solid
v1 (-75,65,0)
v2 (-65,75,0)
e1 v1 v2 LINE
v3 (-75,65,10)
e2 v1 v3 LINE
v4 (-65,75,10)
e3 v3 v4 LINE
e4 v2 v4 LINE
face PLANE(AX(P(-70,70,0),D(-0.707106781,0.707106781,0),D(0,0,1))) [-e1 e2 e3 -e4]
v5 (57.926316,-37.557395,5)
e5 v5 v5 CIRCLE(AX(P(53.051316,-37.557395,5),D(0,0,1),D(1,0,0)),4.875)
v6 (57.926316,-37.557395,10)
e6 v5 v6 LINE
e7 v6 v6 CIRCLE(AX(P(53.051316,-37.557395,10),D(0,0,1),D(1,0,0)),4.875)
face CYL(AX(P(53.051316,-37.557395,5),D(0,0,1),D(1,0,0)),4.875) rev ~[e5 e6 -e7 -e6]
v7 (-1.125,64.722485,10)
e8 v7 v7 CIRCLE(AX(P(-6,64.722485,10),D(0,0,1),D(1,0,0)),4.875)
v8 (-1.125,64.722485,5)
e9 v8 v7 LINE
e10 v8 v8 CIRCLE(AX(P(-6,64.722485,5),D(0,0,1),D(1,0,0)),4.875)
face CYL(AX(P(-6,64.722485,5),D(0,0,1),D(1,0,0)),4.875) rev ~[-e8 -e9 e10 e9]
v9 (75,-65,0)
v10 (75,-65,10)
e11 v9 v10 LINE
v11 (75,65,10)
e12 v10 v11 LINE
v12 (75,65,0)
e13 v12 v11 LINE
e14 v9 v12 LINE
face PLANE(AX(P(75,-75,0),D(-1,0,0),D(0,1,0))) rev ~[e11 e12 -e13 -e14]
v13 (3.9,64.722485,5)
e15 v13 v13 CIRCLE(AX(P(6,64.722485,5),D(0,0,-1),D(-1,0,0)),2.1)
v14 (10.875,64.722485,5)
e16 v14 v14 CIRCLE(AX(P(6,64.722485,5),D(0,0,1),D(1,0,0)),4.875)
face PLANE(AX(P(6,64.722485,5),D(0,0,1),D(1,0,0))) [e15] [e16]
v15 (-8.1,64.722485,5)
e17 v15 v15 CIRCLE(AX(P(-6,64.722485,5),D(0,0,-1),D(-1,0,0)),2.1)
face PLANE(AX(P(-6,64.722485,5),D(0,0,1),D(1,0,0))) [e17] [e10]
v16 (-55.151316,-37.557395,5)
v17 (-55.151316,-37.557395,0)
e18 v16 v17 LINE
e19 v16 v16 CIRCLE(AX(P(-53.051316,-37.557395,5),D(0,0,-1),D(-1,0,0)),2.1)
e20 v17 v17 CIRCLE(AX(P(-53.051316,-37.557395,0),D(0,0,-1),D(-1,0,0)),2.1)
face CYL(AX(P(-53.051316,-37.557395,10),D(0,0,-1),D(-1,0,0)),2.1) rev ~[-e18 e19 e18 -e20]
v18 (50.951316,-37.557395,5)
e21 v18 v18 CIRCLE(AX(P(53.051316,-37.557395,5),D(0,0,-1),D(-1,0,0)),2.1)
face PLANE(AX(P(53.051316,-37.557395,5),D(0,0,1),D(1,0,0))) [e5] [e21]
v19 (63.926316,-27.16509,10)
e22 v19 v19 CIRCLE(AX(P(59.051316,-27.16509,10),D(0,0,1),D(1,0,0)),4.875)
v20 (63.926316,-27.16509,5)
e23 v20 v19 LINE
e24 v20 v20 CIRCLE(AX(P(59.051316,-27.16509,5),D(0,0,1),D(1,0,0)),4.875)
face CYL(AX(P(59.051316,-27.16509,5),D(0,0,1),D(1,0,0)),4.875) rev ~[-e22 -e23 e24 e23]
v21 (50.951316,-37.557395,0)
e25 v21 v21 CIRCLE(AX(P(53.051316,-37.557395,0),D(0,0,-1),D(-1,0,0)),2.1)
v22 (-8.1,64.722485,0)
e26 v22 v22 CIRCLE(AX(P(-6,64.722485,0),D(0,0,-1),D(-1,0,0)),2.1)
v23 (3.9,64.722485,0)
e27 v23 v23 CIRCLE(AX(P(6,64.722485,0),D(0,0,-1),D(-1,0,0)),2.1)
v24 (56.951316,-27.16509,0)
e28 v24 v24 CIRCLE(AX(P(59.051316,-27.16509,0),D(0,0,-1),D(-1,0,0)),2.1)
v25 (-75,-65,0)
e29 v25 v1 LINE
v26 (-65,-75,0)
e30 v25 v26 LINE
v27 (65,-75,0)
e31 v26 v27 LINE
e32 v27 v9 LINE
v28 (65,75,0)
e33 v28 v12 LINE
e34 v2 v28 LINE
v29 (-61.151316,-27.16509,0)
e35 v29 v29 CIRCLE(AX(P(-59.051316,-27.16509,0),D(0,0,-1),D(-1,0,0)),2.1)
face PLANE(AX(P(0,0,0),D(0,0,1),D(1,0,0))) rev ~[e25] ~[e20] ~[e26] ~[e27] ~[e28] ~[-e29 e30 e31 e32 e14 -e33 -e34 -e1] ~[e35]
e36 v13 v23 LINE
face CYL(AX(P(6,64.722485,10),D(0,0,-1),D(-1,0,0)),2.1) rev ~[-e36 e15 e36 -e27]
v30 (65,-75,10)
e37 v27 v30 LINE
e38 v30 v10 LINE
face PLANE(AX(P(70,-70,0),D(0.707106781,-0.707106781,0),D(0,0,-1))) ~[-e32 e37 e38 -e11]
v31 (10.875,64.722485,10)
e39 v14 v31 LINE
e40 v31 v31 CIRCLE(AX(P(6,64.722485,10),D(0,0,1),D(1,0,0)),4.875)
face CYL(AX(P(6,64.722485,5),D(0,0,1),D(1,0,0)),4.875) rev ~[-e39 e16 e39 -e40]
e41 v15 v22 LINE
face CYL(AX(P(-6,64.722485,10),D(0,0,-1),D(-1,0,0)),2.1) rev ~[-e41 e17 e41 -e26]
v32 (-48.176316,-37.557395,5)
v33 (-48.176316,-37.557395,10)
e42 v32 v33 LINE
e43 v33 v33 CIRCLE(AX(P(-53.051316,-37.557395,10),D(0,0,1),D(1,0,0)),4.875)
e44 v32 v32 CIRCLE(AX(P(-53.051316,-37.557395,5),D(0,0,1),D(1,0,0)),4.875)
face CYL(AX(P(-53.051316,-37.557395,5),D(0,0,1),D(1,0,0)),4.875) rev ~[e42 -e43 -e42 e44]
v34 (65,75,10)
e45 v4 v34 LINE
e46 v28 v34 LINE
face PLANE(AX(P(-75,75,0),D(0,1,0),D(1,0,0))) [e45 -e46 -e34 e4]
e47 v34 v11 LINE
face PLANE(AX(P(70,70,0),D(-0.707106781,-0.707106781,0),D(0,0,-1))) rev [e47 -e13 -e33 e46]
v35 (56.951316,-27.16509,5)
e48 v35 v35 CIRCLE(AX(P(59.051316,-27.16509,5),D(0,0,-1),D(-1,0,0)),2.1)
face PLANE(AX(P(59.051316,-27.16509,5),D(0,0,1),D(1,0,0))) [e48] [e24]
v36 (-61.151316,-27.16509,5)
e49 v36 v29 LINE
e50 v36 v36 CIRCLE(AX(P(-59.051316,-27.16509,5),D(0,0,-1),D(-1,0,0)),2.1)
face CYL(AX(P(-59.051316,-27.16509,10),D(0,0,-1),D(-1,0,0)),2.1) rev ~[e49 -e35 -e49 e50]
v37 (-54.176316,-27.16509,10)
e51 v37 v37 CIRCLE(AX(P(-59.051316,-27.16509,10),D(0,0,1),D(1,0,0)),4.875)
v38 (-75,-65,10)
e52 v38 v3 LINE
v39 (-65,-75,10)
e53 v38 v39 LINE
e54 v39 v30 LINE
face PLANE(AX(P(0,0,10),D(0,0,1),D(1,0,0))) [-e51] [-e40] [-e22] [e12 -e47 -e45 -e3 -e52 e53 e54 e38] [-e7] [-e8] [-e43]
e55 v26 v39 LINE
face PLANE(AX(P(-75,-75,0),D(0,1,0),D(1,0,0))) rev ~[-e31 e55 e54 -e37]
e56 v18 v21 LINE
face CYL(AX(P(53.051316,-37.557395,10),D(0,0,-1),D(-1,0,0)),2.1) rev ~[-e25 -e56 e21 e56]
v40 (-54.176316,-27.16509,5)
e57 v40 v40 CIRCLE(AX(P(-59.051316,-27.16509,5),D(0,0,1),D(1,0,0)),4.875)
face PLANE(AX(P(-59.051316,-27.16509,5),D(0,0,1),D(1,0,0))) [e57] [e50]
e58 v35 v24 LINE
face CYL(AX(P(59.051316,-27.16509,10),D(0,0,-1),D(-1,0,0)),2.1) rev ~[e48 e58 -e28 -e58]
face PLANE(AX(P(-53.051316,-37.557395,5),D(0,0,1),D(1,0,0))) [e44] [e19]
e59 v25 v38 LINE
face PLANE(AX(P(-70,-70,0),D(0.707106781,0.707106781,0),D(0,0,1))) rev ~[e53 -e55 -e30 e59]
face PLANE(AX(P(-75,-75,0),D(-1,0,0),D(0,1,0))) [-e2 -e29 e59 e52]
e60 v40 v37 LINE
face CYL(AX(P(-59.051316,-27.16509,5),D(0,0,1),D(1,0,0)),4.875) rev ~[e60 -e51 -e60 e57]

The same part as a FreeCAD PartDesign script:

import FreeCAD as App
import Part
import Sketcher
Q = App.Units.Quantity


def edges_at(feature, points):
    """Names of the edges that pass closest to the given points."""
    edges = feature.Shape.Edges
    near = lambda p: min(range(len(edges)), key=lambda i: edges[i].distToShape(Part.Vertex(*p))[0])
    return sorted({f"Edge{near(p) + 1}" for p in points})

doc = App.newDocument("Part")
body = doc.addObject("PartDesign::Body", "Body")

sketch1 = body.newObject("Sketcher::SketchObject", "Sketch")
sketch1.AttachmentSupport = (doc.getObject("XY_Plane"), [""])
sketch1.MapMode = "FlatFace"
sketch1.addGeometry(Part.LineSegment(App.Vector(-75, 75, 0), App.Vector(-75, -75, 0)), False)
sketch1.addGeometry(Part.LineSegment(App.Vector(-75, -75, 0), App.Vector(75, -75, 0)), False)
sketch1.addGeometry(Part.LineSegment(App.Vector(75, -75, 0), App.Vector(75, 75, 0)), False)
sketch1.addGeometry(Part.LineSegment(App.Vector(75, 75, 0), App.Vector(-75, 75, 0)), False)
sketch1.addConstraint(Sketcher.Constraint("Coincident", 0, 2, 1, 1))
sketch1.addConstraint(Sketcher.Constraint("Coincident", 1, 2, 2, 1))
sketch1.addConstraint(Sketcher.Constraint("Coincident", 2, 2, 3, 1))
sketch1.addConstraint(Sketcher.Constraint("Coincident", 3, 2, 0, 1))
sketch1.addConstraint(Sketcher.Constraint("Vertical", 0))
sketch1.addConstraint(Sketcher.Constraint("Horizontal", 1))
sketch1.addConstraint(Sketcher.Constraint("Vertical", 2))
sketch1.addConstraint(Sketcher.Constraint("Horizontal", 3))
sketch1.addConstraint(Sketcher.Constraint("Symmetric", 0, 2, 2, 2, -1, 1))
sketch1.addConstraint(Sketcher.Constraint("Equal", 3, 0))
sketch1.addConstraint(Sketcher.Constraint("DistanceX", 1, 1, 1, 2, Q("150 mm")))
pad1 = body.newObject("PartDesign::Pad", "Pad")
pad1.Profile = sketch1
pad1.Length = 10

sketch2 = body.newObject("Sketcher::SketchObject", "Sketch001")
sketch2.AttachmentSupport = (doc.getObject("XY_Plane"), [""])
sketch2.MapMode = "FlatFace"
sketch2.AttachmentOffset = App.Placement(App.Vector(0, 0, 10), App.Rotation())
sketch2.addGeometry(Part.Circle(App.Vector(-6, 64.722485, 0), App.Vector(0, 0, 1), 2.1), False)
sketch2.addGeometry(Part.Circle(App.Vector(6, 64.722485, 0), App.Vector(0, 0, 1), 2.1), False)
sketch2.addGeometry(Part.Circle(App.Vector(-59.051316, -27.16509, 0), App.Vector(0, 0, 1), 2.1), False)
sketch2.addGeometry(Part.Circle(App.Vector(-53.051316, -37.557395, 0), App.Vector(0, 0, 1), 2.1), False)
sketch2.addGeometry(Part.Circle(App.Vector(53.051316, -37.557395, 0), App.Vector(0, 0, 1), 2.1), False)
sketch2.addGeometry(Part.Circle(App.Vector(59.051316, -27.16509, 0), App.Vector(0, 0, 1), 2.1), False)
sketch2.addConstraint(Sketcher.Constraint("Equal", 0, 1))
sketch2.addConstraint(Sketcher.Constraint("Equal", 1, 2))
sketch2.addConstraint(Sketcher.Constraint("Equal", 2, 3))
sketch2.addConstraint(Sketcher.Constraint("Equal", 3, 4))
sketch2.addConstraint(Sketcher.Constraint("Equal", 4, 5))
sketch2.addConstraint(Sketcher.Constraint("Symmetric", 0, 3, 1, 3, -2))
sketch2.addConstraint(Sketcher.Constraint("Symmetric", 3, 3, 4, 3, -2))
sketch2.addConstraint(Sketcher.Constraint("Symmetric", 2, 3, 5, 3, -2))
sketch2.addConstraint(Sketcher.Constraint("Diameter", 0, Q("4.2 mm")))
sketch2.addConstraint(Sketcher.Constraint("DistanceX", 0, 3, -1, 1, Q("6 mm")))
sketch2.addConstraint(Sketcher.Constraint("DistanceX", 2, 3, 3, 3, Q("6 mm")))
sketch2.addConstraint(Sketcher.Constraint("DistanceY", 2, 3, -1, 1, Q("27.16509 mm")))
sketch2.addConstraint(Sketcher.Constraint("DistanceY", 3, 3, 0, 3, Q("102.279879 mm")))
sketch2.addConstraint(Sketcher.Constraint("DistanceX", 3, 3, 4, 3, Q("106.102632 mm")))
sketch2.addConstraint(Sketcher.Constraint("DistanceY", -1, 1, 0, 3, Q("64.722485 mm")))
doc.recompute()
hole = body.newObject("PartDesign::Hole", "Hole")
hole.Profile = sketch2
hole.ThreadType = "None"
hole.Diameter = 4.2
hole.DepthType = "Dimension"
hole.Depth = 15.8
hole.DrillPoint = "Angled"
hole.DrillPointAngle = 118
hole.HoleCutType = "Counterbore"
hole.HoleCutDiameter = 9.75
hole.HoleCutDepth = 5
doc.recompute()

chamfer = body.newObject("PartDesign::Chamfer", "Chamfer")
chamfer.Base = (hole, edges_at(hole, [
    (-75, 75, 5),
    (75, 75, 5),
    (75, -75, 5),
    (-75, -75, 5),
]))
chamfer.Size = 10

doc.recompute()
